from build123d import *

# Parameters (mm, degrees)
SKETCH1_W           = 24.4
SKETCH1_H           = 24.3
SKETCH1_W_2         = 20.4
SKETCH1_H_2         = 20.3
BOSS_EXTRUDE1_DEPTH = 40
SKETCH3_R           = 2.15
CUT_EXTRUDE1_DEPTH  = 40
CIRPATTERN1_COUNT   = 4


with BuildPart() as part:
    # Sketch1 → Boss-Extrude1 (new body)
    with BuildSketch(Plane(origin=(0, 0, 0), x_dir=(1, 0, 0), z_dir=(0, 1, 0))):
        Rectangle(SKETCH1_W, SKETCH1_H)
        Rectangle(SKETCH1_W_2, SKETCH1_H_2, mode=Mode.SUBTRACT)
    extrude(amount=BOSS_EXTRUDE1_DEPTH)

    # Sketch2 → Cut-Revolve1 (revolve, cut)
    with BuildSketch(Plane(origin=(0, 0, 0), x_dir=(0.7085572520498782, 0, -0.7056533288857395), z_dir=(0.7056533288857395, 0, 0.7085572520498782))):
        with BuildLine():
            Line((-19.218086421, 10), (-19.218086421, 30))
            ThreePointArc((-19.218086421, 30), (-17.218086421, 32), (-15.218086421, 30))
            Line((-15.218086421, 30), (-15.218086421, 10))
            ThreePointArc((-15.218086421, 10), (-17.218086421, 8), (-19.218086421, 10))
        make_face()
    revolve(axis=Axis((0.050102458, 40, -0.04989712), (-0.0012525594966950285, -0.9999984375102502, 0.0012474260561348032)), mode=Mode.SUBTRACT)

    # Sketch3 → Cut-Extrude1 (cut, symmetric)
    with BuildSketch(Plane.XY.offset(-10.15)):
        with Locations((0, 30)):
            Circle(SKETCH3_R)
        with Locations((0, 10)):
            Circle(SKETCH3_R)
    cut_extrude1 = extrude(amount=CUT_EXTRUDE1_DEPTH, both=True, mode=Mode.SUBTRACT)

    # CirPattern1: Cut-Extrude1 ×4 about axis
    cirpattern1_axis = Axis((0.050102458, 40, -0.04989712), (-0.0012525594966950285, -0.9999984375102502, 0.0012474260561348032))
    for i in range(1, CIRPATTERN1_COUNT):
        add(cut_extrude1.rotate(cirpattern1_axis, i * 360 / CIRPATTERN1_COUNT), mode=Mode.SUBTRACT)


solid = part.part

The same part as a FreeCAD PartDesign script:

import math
import FreeCAD as App
import Part
import Sketcher

doc = App.newDocument("Part")
body = doc.addObject("PartDesign::Body", "Body")

sketch1 = doc.addObject("Sketcher::SketchObject", "Sketch")
body.addObject(sketch1)
sketch1.AttachmentSupport = (doc.XZ_Plane, [""])
sketch1.MapMode = "FlatFace"
sketch1.addGeometry([
    Part.LineSegment(App.Vector(-12, -12, 0), App.Vector(-12, 12, 0)),
    Part.LineSegment(App.Vector(-12, 12, 0), App.Vector(12, 12, 0)),
    Part.LineSegment(App.Vector(12, 12, 0), App.Vector(12, -12, 0)),
    Part.LineSegment(App.Vector(12, -12, 0), App.Vector(-12, -12, 0)),
    Part.LineSegment(App.Vector(10, 10, 0), App.Vector(-10, 10, 0)),
    Part.LineSegment(App.Vector(-10, 10, 0), App.Vector(-10, -10, 0)),
    Part.LineSegment(App.Vector(-10, -10, 0), App.Vector(10, -10, 0)),
    Part.LineSegment(App.Vector(10, -10, 0), App.Vector(10, 10, 0)),
], False)
sketch1.addConstraint([
    Sketcher.Constraint("Coincident", 0, 2, 1, 1),
    Sketcher.Constraint("Coincident", 1, 2, 2, 1),
    Sketcher.Constraint("Coincident", 2, 2, 3, 1),
    Sketcher.Constraint("Coincident", 3, 2, 0, 1),
    Sketcher.Constraint("Coincident", 4, 2, 5, 1),
    Sketcher.Constraint("Coincident", 5, 2, 6, 1),
    Sketcher.Constraint("Coincident", 6, 2, 7, 1),
    Sketcher.Constraint("Coincident", 7, 2, 4, 1),
    Sketcher.Constraint("Vertical", 0),
    Sketcher.Constraint("Horizontal", 1),
    Sketcher.Constraint("Vertical", 2),
    Sketcher.Constraint("Horizontal", 3),
    Sketcher.Constraint("Horizontal", 4),
    Sketcher.Constraint("Vertical", 5),
    Sketcher.Constraint("Horizontal", 6),
    Sketcher.Constraint("Vertical", 7),
    Sketcher.Constraint("Symmetric", 0, 2, 2, 2, -1, 1),
    Sketcher.Constraint("Symmetric", 4, 2, 6, 2, -1, 1),
    Sketcher.Constraint("DistanceX", 1, 1, 1, 2, 24.4),
    Sketcher.Constraint("DistanceX", 4, 2, 4, 1, 20.4),
    Sketcher.Constraint("DistanceY", 0, 1, 0, 2, 24.3),
    Sketcher.Constraint("DistanceY", 5, 2, 5, 1, 20.3),
])
pad1 = doc.addObject("PartDesign::Pad", "Pad")
body.addObject(pad1)
pad1.Profile = sketch1
pad1.Length = 40
pad1.Reversed = True

sketch2 = doc.addObject("Sketcher::SketchObject", "Sketch001")
body.addObject(sketch2)
sketch2.Placement = App.Placement(App.Vector(0, 0, 0), App.Rotation(App.Vector(0.708557252, 0, -0.705653329), App.Vector(0, 1, 0), App.Vector(0.705653329, 0, 0.708557252), "ZXY"))
sketch2.addGeometry([
    Part.LineSegment(App.Vector(-19.2, 30, 0), App.Vector(-19.2, 10, 0)),
    Part.ArcOfCircle(Part.Circle(App.Vector(-17.2, 10, 0), App.Vector(0, 0, 1), 2), math.radians(180), math.radians(360)),
    Part.LineSegment(App.Vector(-15.2, 10, 0), App.Vector(-15.2, 30, 0)),
    Part.ArcOfCircle(Part.Circle(App.Vector(-17.2, 30, 0), App.Vector(0, 0, 1), 2), math.radians(0), math.radians(180)),
], False)
sketch2.addGeometry(Part.LineSegment(App.Vector(0.1, 30, 0), App.Vector(0, 10, 0)), True)
sketch2.addConstraint([
    Sketcher.Constraint("Tangent", 0, 2, 1, 1),
    Sketcher.Constraint("Tangent", 1, 2, 2, 1),
    Sketcher.Constraint("Tangent", 2, 2, 3, 1),
    Sketcher.Constraint("Tangent", 3, 2, 0, 1),
    Sketcher.Constraint("Vertical", 0),
    Sketcher.Constraint("Vertical", 2),
    Sketcher.Constraint("Radius", 1, 2.0),
    Sketcher.Constraint("DistanceY", 0, 2, 0, 1, 20.0),
    Sketcher.Constraint("DistanceY", -1, 1, 1, 3, 10.0),
    Sketcher.Constraint("Distance", 4, 20.00704),
    Sketcher.Constraint("DistanceX", 2, 2, 4, 1, 15.271072),
    Sketcher.Constraint("DistanceX", 1, 3, -1, 1, 17.218086),
    Sketcher.Constraint("DistanceY", -1, 1, 4, 1, 29.973004),
    Sketcher.Constraint("DistanceX", -1, 1, 4, 2, 0.017618),
])
groove = doc.addObject("PartDesign::Groove", "Groove")
body.addObject(groove)
groove.Profile = sketch2
groove.ReferenceAxis = (sketch2, ["Axis0"])
groove.Angle = 360

sketch3 = doc.addObject("Sketcher::SketchObject", "Sketch002")
body.addObject(sketch3)
sketch3.AttachmentSupport = (doc.XY_Plane, [""])
sketch3.MapMode = "FlatFace"
sketch3.AttachmentOffset = App.Placement(App.Vector(0, 0, -10.15), App.Rotation())
sketch3.addGeometry([
    Part.Circle(App.Vector(0, 30, 0), App.Vector(0, 0, 1), 2.1),
    Part.Circle(App.Vector(0, 10, 0), App.Vector(0, 0, 1), 2.1),
], False)
sketch3.addConstraint([
    Sketcher.Constraint("Equal", 0, 1),
    Sketcher.Constraint("PointOnObject", 0, 3, -2),
    Sketcher.Constraint("PointOnObject", 1, 3, -2),
    Sketcher.Constraint("Diameter", 0, 4.3),
    Sketcher.Constraint("DistanceY", -1, 1, 0, 3, 30.0),
    Sketcher.Constraint("DistanceY", -1, 1, 1, 3, 10.0),
])
pocket1 = doc.addObject("PartDesign::Pocket", "Pocket")
body.addObject(pocket1)
pocket1.Profile = sketch3
pocket1.Length = 80
pocket1.Midplane = True
doc.recompute()

datumline = doc.addObject("PartDesign::Line", "DatumLine")
body.addObject(datumline)
datumline.Placement = App.Placement(App.Vector(0, 0, 0), App.Rotation(App.Vector(0, 0, 1), App.Vector(-0.001252559, -0.999998438, 0.001247426)))
polarpattern = doc.addObject("PartDesign::PolarPattern", "PolarPattern")
body.addObject(polarpattern)
polarpattern.Originals = [pocket1]
polarpattern.Axis = (datumline, [""])
polarpattern.Angle = 360
polarpattern.Occurrences = 4
body.Tip = polarpattern

doc.recompute()
